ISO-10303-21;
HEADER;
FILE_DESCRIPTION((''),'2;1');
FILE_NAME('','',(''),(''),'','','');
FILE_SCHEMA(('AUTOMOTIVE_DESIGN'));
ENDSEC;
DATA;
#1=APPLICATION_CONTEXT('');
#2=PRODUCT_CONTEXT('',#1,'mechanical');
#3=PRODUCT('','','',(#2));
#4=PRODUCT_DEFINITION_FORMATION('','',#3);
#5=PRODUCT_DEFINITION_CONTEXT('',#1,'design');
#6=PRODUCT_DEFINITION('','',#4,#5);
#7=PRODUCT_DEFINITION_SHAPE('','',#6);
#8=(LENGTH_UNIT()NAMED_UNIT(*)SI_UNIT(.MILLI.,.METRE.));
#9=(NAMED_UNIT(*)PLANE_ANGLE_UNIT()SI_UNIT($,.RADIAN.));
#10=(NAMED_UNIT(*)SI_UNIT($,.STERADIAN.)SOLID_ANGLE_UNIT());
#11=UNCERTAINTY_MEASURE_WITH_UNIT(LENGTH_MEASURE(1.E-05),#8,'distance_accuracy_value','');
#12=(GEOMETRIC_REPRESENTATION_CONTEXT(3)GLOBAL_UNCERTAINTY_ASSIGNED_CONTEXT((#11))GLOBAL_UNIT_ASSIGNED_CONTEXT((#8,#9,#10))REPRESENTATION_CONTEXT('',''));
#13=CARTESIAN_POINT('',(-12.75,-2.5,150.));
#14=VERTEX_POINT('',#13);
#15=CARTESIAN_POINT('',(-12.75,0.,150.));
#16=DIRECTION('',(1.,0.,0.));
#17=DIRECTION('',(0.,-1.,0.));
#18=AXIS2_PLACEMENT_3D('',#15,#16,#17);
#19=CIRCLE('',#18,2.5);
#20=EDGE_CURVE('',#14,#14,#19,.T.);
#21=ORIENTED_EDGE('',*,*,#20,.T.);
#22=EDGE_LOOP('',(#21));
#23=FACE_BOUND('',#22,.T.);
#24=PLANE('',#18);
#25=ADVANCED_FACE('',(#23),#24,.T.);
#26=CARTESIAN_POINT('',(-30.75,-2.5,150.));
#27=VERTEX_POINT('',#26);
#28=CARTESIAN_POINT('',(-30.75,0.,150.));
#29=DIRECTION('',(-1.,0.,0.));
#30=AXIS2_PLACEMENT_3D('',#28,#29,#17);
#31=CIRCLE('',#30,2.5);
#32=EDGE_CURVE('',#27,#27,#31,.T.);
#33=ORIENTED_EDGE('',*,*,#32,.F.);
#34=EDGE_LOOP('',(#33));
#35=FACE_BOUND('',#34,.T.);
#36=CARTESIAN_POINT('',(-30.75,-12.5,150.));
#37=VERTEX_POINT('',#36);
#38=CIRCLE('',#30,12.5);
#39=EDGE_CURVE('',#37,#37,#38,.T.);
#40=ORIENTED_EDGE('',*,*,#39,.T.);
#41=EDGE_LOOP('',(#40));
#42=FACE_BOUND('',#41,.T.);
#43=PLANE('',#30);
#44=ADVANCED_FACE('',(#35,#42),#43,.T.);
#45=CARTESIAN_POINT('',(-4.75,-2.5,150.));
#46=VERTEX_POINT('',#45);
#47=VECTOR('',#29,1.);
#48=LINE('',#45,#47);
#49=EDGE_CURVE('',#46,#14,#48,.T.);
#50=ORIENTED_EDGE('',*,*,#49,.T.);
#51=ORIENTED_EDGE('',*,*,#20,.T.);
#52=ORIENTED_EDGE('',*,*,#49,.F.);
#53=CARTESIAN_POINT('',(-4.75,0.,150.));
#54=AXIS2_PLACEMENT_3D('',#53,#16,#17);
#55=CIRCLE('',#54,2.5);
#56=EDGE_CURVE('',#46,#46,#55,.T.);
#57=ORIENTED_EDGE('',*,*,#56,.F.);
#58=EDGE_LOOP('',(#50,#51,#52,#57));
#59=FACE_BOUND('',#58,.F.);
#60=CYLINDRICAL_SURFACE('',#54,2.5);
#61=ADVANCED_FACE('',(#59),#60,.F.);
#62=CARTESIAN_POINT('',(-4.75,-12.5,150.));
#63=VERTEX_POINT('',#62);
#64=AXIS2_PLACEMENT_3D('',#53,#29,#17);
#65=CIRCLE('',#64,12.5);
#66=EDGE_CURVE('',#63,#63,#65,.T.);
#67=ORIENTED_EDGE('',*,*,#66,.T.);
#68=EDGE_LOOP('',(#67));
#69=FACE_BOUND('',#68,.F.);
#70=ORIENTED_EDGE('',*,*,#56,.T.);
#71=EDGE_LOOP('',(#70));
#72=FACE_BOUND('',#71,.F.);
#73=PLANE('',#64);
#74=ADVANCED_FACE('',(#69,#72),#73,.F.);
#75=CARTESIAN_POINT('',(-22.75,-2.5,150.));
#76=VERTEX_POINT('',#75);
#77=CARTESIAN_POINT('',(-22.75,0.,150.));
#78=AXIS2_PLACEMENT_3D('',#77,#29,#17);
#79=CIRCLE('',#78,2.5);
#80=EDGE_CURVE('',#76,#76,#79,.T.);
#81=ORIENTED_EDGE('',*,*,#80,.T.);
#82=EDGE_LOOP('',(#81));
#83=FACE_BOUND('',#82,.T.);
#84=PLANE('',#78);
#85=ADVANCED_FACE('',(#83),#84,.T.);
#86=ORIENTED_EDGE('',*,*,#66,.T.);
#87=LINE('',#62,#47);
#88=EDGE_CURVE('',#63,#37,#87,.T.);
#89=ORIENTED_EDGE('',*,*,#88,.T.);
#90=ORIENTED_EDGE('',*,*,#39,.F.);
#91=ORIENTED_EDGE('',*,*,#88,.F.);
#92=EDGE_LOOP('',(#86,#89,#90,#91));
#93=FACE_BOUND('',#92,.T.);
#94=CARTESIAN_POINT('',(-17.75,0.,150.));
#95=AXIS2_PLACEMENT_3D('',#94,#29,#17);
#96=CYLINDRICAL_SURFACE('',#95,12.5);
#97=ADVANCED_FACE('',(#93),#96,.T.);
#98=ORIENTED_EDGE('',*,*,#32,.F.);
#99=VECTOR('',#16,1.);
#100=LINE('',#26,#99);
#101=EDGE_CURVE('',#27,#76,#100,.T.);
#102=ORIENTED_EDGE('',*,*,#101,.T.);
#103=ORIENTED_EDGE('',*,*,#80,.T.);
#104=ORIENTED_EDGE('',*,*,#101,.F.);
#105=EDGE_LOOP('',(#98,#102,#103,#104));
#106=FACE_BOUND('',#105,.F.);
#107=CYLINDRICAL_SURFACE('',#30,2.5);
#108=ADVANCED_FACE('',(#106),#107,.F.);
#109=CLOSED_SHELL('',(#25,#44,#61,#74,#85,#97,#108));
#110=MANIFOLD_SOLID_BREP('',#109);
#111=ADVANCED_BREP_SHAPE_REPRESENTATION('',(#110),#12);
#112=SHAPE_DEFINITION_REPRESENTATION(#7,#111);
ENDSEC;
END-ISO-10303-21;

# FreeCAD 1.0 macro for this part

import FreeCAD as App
import Part
import Sketcher
from FreeCAD import Vector
Q = App.Units.Quantity

doc = App.newDocument("Part")
body = doc.addObject("PartDesign::Body", "Body")

sketch1 = body.newObject("Sketcher::SketchObject", "Sketch")
sketch1.AttachmentSupport = (doc.getObject("XZ_Plane"), [""])
sketch1.MapMode = "FlatFace"
sketch1.addGeometry(Part.Circle(Vector(0, 0, 0), Vector(0, 0, 1), 12), False)
sketch1.addConstraint([
    Sketcher.Constraint("Coincident", 0, 3, -1, 1),
    Sketcher.Constraint("Diameter", 0, Q("25 mm")),
])
pad1 = body.newObject("PartDesign::Pad", "Pad")
pad1.Profile = sketch1
pad1.Length = 26
pad1.Midplane = True

sketch2 = body.newObject("Sketcher::SketchObject", "Sketch001")
sketch2.AttachmentSupport = (doc.getObject("XZ_Plane"), [""])
sketch2.MapMode = "FlatFace"
sketch2.AttachmentOffset = App.Placement(Vector(0, 0, 13), App.Rotation())
sketch2.addGeometry(Part.Circle(Vector(0, 0, 0), Vector(0, 0, 1), 2.5), False)
sketch2.addConstraint([
    Sketcher.Constraint("Coincident", 0, 3, -1, 1),
    Sketcher.Constraint("Diameter", 0, Q("5 mm")),
])
pocket1 = body.newObject("PartDesign::Pocket", "Pocket")
pocket1.Profile = sketch2
pocket1.Length = 8

sketch3 = body.newObject("Sketcher::SketchObject", "Sketch002")
sketch3.AttachmentSupport = (doc.getObject("XZ_Plane"), [""])
sketch3.MapMode = "FlatFace"
sketch3.AttachmentOffset = App.Placement(Vector(0, 0, -13), App.Rotation())
sketch3.addGeometry(Part.Circle(Vector(0, 0, 0), Vector(0, 0, 1), 2.5), False)
sketch3.addConstraint([
    Sketcher.Constraint("Coincident", 0, 3, -1, 1),
    Sketcher.Constraint("Diameter", 0, Q("5 mm")),
])
pocket2 = body.newObject("PartDesign::Pocket", "Pocket001")
pocket2.Profile = sketch3
pocket2.Length = 8
pocket2.Reversed = True
body2 = doc.addObject("PartDesign::Body", "Body001")
doc.recompute()

body.Placement = App.Placement(Vector(-17.75, 0, 150), App.Rotation(Vector(0, 0, 1), 270))
boolean = body2.newObject("PartDesign::Boolean", "Boolean")
boolean.Type = "Fuse"
boolean.addObjects([body])

doc.recompute()
